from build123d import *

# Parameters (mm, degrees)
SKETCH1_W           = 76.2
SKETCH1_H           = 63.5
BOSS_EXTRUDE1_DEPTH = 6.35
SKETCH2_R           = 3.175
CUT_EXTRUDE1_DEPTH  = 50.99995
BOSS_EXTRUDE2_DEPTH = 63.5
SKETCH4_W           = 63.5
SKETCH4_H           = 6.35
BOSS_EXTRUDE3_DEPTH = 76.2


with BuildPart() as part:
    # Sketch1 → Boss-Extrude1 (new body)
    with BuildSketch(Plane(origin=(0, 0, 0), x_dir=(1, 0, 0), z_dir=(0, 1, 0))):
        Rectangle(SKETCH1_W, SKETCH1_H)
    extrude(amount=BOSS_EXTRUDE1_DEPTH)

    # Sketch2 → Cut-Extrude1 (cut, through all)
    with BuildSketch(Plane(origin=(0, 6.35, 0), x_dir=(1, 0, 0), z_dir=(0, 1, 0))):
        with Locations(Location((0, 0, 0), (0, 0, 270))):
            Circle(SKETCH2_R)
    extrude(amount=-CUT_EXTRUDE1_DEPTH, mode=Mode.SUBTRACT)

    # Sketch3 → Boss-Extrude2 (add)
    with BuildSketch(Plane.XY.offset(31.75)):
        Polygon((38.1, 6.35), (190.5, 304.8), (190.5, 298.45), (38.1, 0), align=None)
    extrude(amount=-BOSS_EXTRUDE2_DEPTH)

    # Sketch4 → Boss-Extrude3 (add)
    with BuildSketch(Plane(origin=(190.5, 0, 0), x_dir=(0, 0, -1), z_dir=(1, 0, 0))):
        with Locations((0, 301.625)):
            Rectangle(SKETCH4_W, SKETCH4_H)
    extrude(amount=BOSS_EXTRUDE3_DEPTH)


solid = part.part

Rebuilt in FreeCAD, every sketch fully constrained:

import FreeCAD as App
import Part
import Sketcher
from FreeCAD import Vector
Q = App.Units.Quantity


def add_polygon(sketch, points):
    """Adds a closed chain of lines whose ends are joined by coincident constraints."""
    first, n = sketch.GeometryCount, len(points)
    for a, b in zip(points, points[1:] + points[:1]):
        sketch.addGeometry(Part.LineSegment(App.Vector(*a, 0), App.Vector(*b, 0)), False)
    for i in range(n):
        sketch.addConstraint(Sketcher.Constraint("Coincident", first + i, 2, first + (i + 1) % n, 1))

doc = App.newDocument("Part")
body = doc.addObject("PartDesign::Body", "Body")

sketch1 = doc.addObject("Sketcher::SketchObject", "Sketch")
body.addObject(sketch1)
sketch1.AttachmentSupport = (doc.XZ_Plane, [""])
sketch1.MapMode = "FlatFace"
add_polygon(sketch1, [(-38.1, -31.75), (-38.1, 31.75), (38.1, 31.75), (38.1, -31.75)])
sketch1.addConstraint(Sketcher.Constraint("Vertical", 0))
sketch1.addConstraint(Sketcher.Constraint("Horizontal", 1))
sketch1.addConstraint(Sketcher.Constraint("Vertical", 2))
sketch1.addConstraint(Sketcher.Constraint("Horizontal", 3))
sketch1.addConstraint(Sketcher.Constraint("Symmetric", 0, 2, 2, 2, -1, 1))
sketch1.addConstraint(Sketcher.Constraint("DistanceX", 1, 1, 1, 2, Q("3 in")))
sketch1.addConstraint(Sketcher.Constraint("DistanceY", 0, 1, 0, 2, Q("2.5 in")))
pad1 = doc.addObject("PartDesign::Pad", "Pad")
body.addObject(pad1)
pad1.Profile = sketch1
pad1.Length = Q("0.25 in")
pad1.Reversed = True

sketch2 = doc.addObject("Sketcher::SketchObject", "Sketch001")
body.addObject(sketch2)
sketch2.AttachmentSupport = (doc.XZ_Plane, [""])
sketch2.MapMode = "FlatFace"
sketch2.AttachmentOffset = App.Placement(Vector(0, 0, -0.25 * 25.4), App.Rotation())
sketch2.addGeometry(Part.Circle(Vector(0, 0, 0), Vector(0, 0, 1), 3.175), False)
sketch2.addConstraint(Sketcher.Constraint("Coincident", 0, 3, -1, 1))
sketch2.addConstraint(Sketcher.Constraint("Diameter", 0, Q("0.25 in")))
pocket1 = doc.addObject("PartDesign::Pocket", "Pocket")
body.addObject(pocket1)
pocket1.Profile = sketch2
pocket1.Type = "ThroughAll"
pocket1.Reversed = True

sketch3 = doc.addObject("Sketcher::SketchObject", "Sketch002")
body.addObject(sketch3)
sketch3.AttachmentSupport = (doc.XY_Plane, [""])
sketch3.MapMode = "FlatFace"
sketch3.AttachmentOffset = App.Placement(Vector(0, 0, 1.25 * 25.4), App.Rotation())
add_polygon(sketch3, [(190.5, 304.8), (38.1, 6.35), (38.1, 0), (190.5, 298.45)])
sketch3.addConstraint(Sketcher.Constraint("Vertical", 1))
sketch3.addConstraint(Sketcher.Constraint("Vertical", 3))
sketch3.addConstraint(Sketcher.Constraint("PointOnObject", 1, 2, -1))
sketch3.addConstraint(Sketcher.Constraint("Parallel", 0, 2))
sketch3.addConstraint(Sketcher.Constraint("DistanceY", -1, 1, 3, 2, Q("12 in")))
sketch3.addConstraint(Sketcher.Constraint("DistanceX", 0, 2, 2, 2, Q("6 in")))
sketch3.addConstraint(Sketcher.Constraint("DistanceY", 1, 2, 1, 1, Q("0.25 in")))
sketch3.addConstraint(Sketcher.Constraint("DistanceX", -1, 1, 0, 2, Q("1.5 in")))
pad2 = doc.addObject("PartDesign::Pad", "Pad001")
body.addObject(pad2)
pad2.Profile = sketch3
pad2.Length = Q("2.5 in")
pad2.Reversed = True

sketch4 = doc.addObject("Sketcher::SketchObject", "Sketch003")
body.addObject(sketch4)
sketch4.AttachmentSupport = (doc.YZ_Plane, [""])
sketch4.MapMode = "FlatFace"
sketch4.AttachmentOffset = App.Placement(Vector(0, 0, 7.5 * 25.4), App.Rotation())
add_polygon(sketch4, [(304.8, 31.75), (298.45, 31.75), (298.45, -31.75), (304.8, -31.75)])
sketch4.addConstraint(Sketcher.Constraint("Horizontal", 0))
sketch4.addConstraint(Sketcher.Constraint("Vertical", 1))
sketch4.addConstraint(Sketcher.Constraint("Horizontal", 2))
sketch4.addConstraint(Sketcher.Constraint("Vertical", 3))
sketch4.addConstraint(Sketcher.Constraint("DistanceY", 1, 2, 1, 1, Q("2.5 in")))
sketch4.addConstraint(Sketcher.Constraint("DistanceX", -1, 1, 2, 2, Q("12 in")))
sketch4.addConstraint(Sketcher.Constraint("DistanceX", 0, 2, 0, 1, Q("0.25 in")))
sketch4.addConstraint(Sketcher.Constraint("DistanceY", -1, 1, 0, 2, Q("1.25 in")))
pad3 = doc.addObject("PartDesign::Pad", "Pad002")
body.addObject(pad3)
pad3.Profile = sketch4
pad3.Length = Q("3 in")

doc.recompute()
